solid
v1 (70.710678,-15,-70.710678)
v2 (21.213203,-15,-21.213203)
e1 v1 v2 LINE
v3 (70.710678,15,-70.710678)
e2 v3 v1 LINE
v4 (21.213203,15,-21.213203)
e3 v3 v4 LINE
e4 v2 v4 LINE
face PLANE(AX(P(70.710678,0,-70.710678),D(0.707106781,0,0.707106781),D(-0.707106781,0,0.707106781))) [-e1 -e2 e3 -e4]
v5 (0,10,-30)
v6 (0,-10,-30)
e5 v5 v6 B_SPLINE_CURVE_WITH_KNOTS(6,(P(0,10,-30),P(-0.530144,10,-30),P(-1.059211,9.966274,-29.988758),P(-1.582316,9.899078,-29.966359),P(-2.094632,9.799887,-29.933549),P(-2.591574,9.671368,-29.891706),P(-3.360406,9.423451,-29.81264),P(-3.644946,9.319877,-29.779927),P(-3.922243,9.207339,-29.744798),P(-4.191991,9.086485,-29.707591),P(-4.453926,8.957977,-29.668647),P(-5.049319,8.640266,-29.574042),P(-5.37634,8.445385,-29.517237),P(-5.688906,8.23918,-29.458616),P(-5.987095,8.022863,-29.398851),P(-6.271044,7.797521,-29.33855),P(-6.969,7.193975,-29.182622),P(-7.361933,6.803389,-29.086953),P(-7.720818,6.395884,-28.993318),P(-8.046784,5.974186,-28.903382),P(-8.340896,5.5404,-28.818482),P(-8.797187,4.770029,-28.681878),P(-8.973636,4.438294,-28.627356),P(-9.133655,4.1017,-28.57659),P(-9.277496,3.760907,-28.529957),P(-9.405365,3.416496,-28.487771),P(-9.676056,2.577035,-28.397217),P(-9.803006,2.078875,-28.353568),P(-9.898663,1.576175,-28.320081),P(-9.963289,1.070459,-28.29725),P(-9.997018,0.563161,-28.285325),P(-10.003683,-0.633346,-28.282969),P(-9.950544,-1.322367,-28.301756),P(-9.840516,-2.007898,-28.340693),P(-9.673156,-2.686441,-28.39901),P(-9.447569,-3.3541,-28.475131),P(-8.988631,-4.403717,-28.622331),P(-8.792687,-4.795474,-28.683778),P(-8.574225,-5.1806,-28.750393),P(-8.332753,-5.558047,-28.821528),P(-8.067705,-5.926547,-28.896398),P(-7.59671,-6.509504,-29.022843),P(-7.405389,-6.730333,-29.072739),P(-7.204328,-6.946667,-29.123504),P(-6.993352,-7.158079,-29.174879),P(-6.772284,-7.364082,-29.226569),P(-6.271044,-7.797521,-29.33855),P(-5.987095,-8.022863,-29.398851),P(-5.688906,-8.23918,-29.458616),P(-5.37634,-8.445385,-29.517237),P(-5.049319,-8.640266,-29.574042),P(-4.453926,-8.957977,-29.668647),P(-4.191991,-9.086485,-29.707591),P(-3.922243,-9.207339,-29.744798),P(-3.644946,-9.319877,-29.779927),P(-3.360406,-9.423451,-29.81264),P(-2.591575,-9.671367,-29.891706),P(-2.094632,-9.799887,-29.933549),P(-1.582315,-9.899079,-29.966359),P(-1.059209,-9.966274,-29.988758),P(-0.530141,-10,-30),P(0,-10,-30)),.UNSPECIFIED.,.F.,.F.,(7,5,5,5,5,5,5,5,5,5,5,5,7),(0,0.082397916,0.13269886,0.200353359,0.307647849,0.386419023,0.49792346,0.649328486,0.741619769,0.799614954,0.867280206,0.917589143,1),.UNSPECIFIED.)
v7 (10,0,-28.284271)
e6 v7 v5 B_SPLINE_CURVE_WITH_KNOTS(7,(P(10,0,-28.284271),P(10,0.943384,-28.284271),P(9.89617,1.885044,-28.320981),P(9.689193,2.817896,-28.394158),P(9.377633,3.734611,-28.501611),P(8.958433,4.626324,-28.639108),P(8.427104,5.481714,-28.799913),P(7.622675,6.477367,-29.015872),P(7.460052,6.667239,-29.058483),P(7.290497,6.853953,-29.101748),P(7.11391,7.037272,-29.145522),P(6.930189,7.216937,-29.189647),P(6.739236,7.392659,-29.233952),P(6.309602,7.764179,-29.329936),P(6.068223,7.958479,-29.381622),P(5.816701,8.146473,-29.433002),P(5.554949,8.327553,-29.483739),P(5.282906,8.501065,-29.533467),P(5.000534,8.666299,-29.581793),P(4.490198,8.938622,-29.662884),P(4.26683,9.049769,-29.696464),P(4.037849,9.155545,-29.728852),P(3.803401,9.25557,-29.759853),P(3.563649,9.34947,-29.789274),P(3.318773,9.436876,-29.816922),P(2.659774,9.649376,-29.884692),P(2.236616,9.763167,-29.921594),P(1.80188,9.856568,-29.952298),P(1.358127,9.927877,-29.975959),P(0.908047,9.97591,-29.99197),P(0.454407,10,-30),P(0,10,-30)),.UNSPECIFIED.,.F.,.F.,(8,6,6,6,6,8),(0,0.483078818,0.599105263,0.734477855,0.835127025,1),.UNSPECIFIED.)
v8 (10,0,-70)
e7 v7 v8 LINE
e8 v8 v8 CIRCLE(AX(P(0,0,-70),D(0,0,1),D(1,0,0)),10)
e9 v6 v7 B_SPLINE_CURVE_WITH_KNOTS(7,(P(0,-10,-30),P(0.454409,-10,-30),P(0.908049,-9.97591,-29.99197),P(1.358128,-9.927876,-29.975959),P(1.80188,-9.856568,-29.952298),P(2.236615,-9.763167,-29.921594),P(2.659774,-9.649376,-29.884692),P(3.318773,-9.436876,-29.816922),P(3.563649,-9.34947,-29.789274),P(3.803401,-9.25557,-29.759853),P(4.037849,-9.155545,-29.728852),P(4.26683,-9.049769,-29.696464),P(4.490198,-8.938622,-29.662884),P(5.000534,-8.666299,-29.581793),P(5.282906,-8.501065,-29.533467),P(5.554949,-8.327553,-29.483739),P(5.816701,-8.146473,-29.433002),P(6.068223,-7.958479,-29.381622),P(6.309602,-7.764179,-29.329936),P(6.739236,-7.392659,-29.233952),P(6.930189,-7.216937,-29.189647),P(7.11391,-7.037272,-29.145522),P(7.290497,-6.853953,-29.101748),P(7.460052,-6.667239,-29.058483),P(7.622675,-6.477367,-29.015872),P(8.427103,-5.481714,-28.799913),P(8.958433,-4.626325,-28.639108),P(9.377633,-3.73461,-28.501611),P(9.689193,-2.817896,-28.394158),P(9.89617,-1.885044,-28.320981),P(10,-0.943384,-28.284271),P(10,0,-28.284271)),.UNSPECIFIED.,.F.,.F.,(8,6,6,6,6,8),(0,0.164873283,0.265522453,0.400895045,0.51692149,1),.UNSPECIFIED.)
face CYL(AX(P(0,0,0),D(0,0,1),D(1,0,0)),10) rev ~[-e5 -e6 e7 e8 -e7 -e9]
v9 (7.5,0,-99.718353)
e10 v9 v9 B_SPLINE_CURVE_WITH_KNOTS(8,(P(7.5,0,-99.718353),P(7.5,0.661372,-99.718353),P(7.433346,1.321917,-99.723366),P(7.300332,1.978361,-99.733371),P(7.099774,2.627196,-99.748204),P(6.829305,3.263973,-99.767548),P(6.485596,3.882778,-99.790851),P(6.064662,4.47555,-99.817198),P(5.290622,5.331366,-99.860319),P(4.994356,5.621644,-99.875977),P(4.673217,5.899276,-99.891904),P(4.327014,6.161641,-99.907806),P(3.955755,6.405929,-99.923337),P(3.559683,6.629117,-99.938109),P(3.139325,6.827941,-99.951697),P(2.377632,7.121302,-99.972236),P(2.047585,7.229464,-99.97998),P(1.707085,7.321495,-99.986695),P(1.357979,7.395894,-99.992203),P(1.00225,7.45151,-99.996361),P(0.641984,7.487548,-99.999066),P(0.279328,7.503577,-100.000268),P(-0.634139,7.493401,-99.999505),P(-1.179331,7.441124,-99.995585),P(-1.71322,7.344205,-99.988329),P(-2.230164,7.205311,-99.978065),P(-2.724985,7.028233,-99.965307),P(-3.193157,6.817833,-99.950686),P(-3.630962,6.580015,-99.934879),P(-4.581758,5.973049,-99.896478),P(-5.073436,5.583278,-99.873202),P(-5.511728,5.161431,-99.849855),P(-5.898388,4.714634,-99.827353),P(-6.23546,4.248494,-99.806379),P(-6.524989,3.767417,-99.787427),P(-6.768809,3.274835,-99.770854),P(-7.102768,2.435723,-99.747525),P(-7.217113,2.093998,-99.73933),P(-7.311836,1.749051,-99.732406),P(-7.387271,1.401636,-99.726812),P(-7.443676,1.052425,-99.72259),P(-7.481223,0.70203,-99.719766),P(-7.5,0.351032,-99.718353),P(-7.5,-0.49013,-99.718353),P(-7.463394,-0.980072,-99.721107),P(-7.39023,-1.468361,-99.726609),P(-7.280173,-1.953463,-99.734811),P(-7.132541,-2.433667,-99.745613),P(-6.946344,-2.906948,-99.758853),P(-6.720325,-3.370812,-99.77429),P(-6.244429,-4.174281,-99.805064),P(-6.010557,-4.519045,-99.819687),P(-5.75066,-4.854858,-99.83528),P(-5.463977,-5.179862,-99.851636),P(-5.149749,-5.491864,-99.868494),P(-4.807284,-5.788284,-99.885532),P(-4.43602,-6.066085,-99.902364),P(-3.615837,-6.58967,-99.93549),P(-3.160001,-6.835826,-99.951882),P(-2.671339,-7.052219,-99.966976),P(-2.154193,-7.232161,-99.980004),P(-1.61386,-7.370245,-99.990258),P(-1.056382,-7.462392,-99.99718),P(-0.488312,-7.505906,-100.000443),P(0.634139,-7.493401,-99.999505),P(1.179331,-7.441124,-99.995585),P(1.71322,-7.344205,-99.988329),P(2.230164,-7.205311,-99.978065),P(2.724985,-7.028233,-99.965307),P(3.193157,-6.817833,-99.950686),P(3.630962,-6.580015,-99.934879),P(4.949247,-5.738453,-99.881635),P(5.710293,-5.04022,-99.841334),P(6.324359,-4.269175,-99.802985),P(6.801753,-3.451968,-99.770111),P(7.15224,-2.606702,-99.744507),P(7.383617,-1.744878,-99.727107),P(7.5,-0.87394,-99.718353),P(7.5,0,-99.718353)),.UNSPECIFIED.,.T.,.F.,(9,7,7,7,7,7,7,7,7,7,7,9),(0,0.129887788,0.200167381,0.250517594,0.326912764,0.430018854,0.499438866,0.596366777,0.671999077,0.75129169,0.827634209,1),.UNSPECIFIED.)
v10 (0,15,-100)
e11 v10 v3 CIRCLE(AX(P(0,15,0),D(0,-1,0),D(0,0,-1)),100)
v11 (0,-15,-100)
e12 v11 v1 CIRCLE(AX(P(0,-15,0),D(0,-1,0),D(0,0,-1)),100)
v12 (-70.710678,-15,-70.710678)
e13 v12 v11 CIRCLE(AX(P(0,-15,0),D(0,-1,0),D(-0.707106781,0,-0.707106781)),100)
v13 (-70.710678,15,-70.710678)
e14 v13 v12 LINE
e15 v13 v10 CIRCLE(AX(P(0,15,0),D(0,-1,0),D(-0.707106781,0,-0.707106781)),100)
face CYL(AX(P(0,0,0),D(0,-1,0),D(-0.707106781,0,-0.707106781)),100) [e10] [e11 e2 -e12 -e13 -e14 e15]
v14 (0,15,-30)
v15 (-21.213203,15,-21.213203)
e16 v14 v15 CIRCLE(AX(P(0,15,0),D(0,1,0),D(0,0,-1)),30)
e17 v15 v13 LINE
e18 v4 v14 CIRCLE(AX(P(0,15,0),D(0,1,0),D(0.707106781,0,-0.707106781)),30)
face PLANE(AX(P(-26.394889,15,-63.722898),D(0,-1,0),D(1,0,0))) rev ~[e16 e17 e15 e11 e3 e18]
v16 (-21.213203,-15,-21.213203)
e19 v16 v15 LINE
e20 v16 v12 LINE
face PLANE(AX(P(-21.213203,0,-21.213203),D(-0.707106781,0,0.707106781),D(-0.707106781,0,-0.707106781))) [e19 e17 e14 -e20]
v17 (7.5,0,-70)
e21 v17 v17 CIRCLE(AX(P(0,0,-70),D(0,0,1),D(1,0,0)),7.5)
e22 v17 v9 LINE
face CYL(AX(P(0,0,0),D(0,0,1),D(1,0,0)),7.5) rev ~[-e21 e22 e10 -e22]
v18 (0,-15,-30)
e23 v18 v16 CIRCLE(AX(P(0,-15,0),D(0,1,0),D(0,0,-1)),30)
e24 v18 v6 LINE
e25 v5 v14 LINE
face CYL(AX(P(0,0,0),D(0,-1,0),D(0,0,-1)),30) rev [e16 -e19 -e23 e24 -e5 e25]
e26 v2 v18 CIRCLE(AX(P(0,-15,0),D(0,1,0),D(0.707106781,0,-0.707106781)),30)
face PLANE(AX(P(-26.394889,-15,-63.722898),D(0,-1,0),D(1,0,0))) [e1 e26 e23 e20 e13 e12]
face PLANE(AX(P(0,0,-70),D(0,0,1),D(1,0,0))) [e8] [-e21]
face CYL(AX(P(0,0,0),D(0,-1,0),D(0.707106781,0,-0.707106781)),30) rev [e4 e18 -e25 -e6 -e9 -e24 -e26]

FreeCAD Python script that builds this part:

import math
import FreeCAD as App
import Part
import Sketcher
from FreeCAD import Vector

doc = App.newDocument("Part")
body = doc.addObject("PartDesign::Body", "Body")

# Sketch on XZ plane
sketch1 = doc.addObject("Sketcher::SketchObject", "Sketch")
body.addObject(sketch1)
sketch1.AttachmentSupport = (doc.XZ_Plane, [""])
sketch1.MapMode = "FlatFace"
sketch1.addGeometry(Part.LineSegment(Vector(-21, -21, 0), Vector(-71, -71, 0)), False)
sketch1.addGeometry(Part.ArcOfCircle(Part.Circle(Vector(0, 0, 0), Vector(0, 0, 1), 100), math.radians(-135), math.radians(-90)), False)
sketch1.addGeometry(Part.ArcOfCircle(Part.Circle(Vector(0, 0, 0), Vector(0, 0, 1), 100), math.radians(-90), math.radians(-45)), False)
sketch1.addGeometry(Part.LineSegment(Vector(71, -71, 0), Vector(21, -21, 0)), False)
sketch1.addGeometry(Part.ArcOfCircle(Part.Circle(Vector(0, 0, 0), Vector(0, 0, 1), 30), math.radians(-90), math.radians(-45)), False)
sketch1.addGeometry(Part.ArcOfCircle(Part.Circle(Vector(0, 0, 0), Vector(0, 0, 1), 30), math.radians(-135), math.radians(-90)), False)
sketch1.addConstraint(Sketcher.Constraint("Coincident", 0, 2, 1, 1))
sketch1.addConstraint(Sketcher.Constraint("Tangent", 1, 2, 2, 1))
sketch1.addConstraint(Sketcher.Constraint("Coincident", 2, 2, 3, 1))
sketch1.addConstraint(Sketcher.Constraint("Coincident", 3, 2, 4, 2))
sketch1.addConstraint(Sketcher.Constraint("Tangent", 4, 1, 5, 2))
sketch1.addConstraint(Sketcher.Constraint("Coincident", 5, 1, 0, 1))
sketch1.addConstraint(Sketcher.Constraint("Coincident", 1, 3, -1, 1))
sketch1.addConstraint(Sketcher.Constraint("Coincident", 4, 3, -1, 1))
sketch1.addConstraint(Sketcher.Constraint("Equal", 1, 2))
sketch1.addConstraint(Sketcher.Constraint("Equal", 4, 5))
sketch1.addConstraint(Sketcher.Constraint("PointOnObject", 1, 2, -2))
sketch1.addConstraint(Sketcher.Constraint("PointOnObject", 4, 1, -2))
sketch1.addConstraint(Sketcher.Constraint("Perpendicular", 0, 3))
sketch1.addConstraint(Sketcher.Constraint("Horizontal", 0, 2, 2, 2))
sketch1.addConstraint(Sketcher.Constraint("Horizontal", 3, 2, 5, 1))
sketch1.addConstraint(Sketcher.Constraint("Radius", 1, 100.0))
sketch1.addConstraint(Sketcher.Constraint("Radius", 4, 30.0))
sketch1.addConstraint(Sketcher.Constraint("DistanceX", 0, 2, -1, 1, 70.710678))
pad1 = doc.addObject("PartDesign::Pad", "Pad")
body.addObject(pad1)
pad1.Profile = sketch1
pad1.Length = 30
pad1.Midplane = True

# Sketch on XY plane
sketch2 = doc.addObject("Sketcher::SketchObject", "Sketch001")
body.addObject(sketch2)
sketch2.AttachmentSupport = (doc.XY_Plane, [""])
sketch2.MapMode = "FlatFace"
sketch2.addGeometry(Part.Circle(Vector(0, 0, 0), Vector(0, 0, 1), 8), False)
sketch2.addConstraint(Sketcher.Constraint("Coincident", 0, 3, -1, 1))
sketch2.addConstraint(Sketcher.Constraint("Diameter", 0, 15.0))
pocket1 = doc.addObject("PartDesign::Pocket", "Pocket")
body.addObject(pocket1)
pocket1.Profile = sketch2
pocket1.Length = 105.450168

# Sketch on XY plane
sketch3 = doc.addObject("Sketcher::SketchObject", "Sketch002")
body.addObject(sketch3)
sketch3.AttachmentSupport = (doc.XY_Plane, [""])
sketch3.MapMode = "FlatFace"
sketch3.addGeometry(Part.Circle(Vector(0, 0, 0), Vector(0, 0, 1), 10), False)
sketch3.addConstraint(Sketcher.Constraint("Coincident", 0, 3, -1, 1))
sketch3.addConstraint(Sketcher.Constraint("Diameter", 0, 20.0))
pocket2 = doc.addObject("PartDesign::Pocket", "Pocket001")
body.addObject(pocket2)
pocket2.Profile = sketch3
pocket2.Length = 70

doc.recompute()
